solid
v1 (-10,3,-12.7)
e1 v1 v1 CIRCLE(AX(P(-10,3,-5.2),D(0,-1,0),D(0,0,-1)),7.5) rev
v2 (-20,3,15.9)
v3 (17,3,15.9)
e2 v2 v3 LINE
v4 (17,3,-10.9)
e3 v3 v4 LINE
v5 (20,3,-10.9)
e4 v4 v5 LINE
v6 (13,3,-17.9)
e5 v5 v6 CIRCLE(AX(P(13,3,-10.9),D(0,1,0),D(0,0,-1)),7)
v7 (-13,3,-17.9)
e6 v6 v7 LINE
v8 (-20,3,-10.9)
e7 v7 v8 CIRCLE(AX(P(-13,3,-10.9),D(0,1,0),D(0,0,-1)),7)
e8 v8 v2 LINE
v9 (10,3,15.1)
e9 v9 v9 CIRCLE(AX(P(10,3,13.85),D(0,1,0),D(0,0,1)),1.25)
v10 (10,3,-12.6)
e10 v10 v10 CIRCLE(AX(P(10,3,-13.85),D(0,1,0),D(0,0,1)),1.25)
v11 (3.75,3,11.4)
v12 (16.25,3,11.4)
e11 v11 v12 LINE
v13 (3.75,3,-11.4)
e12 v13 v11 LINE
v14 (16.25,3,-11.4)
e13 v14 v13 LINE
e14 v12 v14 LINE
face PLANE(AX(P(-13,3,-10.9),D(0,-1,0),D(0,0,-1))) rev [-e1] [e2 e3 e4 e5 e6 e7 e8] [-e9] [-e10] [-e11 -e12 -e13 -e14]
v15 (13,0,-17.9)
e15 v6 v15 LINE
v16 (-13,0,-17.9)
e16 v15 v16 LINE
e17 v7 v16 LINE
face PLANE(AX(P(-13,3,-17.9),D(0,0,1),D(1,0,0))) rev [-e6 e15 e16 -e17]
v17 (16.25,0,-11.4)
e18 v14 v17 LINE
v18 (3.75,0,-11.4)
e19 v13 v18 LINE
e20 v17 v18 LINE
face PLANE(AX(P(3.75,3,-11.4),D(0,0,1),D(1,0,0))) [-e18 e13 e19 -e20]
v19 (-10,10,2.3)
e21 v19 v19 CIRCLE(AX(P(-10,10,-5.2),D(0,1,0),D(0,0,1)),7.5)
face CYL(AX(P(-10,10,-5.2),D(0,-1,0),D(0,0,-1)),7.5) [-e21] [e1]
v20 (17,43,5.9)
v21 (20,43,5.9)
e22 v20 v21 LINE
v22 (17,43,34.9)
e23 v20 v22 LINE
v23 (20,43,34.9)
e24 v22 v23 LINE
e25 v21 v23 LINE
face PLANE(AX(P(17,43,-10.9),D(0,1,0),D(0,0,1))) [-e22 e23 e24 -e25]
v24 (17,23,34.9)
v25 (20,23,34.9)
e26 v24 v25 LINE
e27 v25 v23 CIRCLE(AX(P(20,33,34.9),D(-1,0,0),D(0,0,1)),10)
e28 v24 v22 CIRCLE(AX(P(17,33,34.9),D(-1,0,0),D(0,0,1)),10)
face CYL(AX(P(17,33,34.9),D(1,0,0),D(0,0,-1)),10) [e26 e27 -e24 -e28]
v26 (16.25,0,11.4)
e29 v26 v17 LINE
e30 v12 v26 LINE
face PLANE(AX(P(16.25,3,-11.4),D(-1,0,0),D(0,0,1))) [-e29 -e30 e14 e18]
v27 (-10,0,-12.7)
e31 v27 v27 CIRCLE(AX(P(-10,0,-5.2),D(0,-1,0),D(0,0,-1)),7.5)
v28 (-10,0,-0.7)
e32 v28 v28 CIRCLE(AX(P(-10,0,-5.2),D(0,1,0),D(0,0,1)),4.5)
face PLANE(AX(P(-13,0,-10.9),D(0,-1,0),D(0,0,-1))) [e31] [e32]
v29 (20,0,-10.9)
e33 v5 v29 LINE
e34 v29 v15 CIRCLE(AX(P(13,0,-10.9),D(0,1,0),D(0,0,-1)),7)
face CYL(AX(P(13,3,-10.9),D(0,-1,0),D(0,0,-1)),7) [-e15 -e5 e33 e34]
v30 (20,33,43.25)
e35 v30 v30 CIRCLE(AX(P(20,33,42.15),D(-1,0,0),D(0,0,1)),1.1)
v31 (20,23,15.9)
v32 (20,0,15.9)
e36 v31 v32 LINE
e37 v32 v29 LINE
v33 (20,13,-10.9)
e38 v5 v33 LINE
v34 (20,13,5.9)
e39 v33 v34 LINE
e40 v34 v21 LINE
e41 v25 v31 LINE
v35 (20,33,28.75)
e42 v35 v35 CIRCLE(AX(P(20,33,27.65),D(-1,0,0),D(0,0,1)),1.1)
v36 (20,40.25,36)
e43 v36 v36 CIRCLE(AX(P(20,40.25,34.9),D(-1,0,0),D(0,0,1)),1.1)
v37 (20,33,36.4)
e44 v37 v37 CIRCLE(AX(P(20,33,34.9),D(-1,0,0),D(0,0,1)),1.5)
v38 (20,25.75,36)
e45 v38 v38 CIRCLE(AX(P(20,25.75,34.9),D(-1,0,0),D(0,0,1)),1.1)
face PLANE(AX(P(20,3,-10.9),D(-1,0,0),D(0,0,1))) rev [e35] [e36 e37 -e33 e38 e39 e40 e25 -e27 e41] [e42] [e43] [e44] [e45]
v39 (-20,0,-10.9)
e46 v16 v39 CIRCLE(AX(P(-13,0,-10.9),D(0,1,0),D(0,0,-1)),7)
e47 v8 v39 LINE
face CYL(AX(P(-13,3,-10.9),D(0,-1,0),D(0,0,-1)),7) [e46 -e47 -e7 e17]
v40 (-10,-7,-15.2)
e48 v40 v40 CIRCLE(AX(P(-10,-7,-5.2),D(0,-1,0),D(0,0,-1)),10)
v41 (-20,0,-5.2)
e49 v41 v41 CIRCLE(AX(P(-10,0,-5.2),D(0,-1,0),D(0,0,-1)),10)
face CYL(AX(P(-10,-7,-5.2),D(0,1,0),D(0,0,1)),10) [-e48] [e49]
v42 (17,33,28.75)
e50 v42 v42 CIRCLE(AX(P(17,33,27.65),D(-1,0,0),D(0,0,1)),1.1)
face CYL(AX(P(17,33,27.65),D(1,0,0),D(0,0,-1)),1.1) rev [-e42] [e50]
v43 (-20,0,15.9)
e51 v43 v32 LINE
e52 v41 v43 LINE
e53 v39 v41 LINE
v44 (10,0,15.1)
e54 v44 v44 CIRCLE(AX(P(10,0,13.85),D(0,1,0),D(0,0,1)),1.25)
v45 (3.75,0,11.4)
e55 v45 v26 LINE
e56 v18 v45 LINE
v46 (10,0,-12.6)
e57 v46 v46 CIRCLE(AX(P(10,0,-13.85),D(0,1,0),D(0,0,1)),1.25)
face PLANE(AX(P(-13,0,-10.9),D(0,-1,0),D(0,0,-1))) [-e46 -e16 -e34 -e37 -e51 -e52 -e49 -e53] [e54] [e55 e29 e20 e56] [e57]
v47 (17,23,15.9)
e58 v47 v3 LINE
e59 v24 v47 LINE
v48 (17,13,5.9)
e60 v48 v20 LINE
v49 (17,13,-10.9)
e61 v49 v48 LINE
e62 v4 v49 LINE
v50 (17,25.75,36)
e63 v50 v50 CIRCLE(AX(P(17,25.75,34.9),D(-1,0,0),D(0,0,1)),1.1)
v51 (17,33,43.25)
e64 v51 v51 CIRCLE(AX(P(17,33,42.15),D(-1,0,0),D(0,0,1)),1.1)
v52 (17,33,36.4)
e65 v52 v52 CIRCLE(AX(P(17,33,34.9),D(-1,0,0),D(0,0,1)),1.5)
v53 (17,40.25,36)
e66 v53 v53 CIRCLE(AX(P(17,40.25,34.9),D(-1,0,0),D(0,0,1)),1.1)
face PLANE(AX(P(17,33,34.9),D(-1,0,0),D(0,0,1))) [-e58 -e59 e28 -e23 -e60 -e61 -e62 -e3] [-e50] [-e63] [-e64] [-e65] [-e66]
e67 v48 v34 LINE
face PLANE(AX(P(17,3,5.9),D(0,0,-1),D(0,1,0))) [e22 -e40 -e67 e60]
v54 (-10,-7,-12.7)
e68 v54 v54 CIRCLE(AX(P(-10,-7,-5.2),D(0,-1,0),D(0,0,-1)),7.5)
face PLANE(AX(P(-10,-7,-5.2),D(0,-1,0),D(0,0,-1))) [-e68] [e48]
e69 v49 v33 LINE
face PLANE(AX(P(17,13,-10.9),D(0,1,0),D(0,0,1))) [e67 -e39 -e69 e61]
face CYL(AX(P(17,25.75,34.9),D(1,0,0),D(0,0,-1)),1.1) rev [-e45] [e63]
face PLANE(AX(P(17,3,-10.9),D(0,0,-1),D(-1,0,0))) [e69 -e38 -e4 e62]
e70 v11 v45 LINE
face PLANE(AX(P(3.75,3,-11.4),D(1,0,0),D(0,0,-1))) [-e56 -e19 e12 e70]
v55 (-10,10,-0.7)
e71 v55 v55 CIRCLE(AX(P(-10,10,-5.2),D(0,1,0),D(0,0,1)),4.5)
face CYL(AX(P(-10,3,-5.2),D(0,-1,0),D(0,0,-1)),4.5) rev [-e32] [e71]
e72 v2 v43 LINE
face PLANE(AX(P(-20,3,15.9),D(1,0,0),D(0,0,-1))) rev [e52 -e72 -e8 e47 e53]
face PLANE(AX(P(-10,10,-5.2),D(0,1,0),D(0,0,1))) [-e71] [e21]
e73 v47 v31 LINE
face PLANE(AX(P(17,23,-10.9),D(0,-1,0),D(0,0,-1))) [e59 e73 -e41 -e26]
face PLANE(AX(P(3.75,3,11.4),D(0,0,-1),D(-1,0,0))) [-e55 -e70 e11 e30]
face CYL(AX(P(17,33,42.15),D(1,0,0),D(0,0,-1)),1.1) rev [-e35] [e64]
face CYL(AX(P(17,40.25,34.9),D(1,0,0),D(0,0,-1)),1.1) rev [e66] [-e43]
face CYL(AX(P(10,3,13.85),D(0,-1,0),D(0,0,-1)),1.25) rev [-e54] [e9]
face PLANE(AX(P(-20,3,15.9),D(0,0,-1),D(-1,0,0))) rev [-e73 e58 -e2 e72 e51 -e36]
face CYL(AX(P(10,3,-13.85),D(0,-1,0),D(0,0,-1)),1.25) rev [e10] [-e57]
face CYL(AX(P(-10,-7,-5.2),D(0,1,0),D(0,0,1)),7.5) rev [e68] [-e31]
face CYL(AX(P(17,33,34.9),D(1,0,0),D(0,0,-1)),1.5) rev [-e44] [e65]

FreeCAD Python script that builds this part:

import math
import FreeCAD as App
import Part
import Sketcher

V = App.Vector


def add_polygon(sketch, points):
    """Adds a closed chain of lines whose ends are joined by coincident constraints."""
    first, n = sketch.GeometryCount, len(points)
    for a, b in zip(points, points[1:] + points[:1]):
        sketch.addGeometry(Part.LineSegment(App.Vector(*a, 0), App.Vector(*b, 0)), False)
    for i in range(n):
        sketch.addConstraint(Sketcher.Constraint("Coincident", first + i, 2, first + (i + 1) % n, 1))

doc = App.newDocument("Part")
params = doc.addObject("Spreadsheet::Sheet", "Params")
for row, (alias, value) in enumerate([
    ("sketch1_diameter", "9 mm"),
    ("sketch1_radius", "7 mm"),
    ("sketch1_diameter2", "2.5 mm"),
    ("sketch1_width", "40 mm"),
    ("sketch1_width2", "12.5 mm"),
    ("pad1_length", "3 mm"),
    ("sketch2_diameter", "3 mm"),
    ("sketch2_radius", "10 mm"),
    ("sketch2_diameter2", "2.2 mm"),
    ("sketch2_width", "20 mm"),
    ("sketch2_width2", "10 mm"),
    ("pad2_length", "3 mm"),
    ("sketch3_diameter", "15 mm"),
    ("sketch3_diameter2", "9 mm"),
    ("pad3_length", "7 mm"),
    ("sketch4_diameter", "20 mm"),
    ("sketch4_diameter2", "15 mm"),
    ("pad4_length", "7 mm"),
], start=1):
    params.set(f"A{row}", alias)
    params.set(f"B{row}", "=" + value)
    params.setAlias(f"B{row}", alias)

body = doc.addObject("PartDesign::Body", "Body")

# Sketch on XZ plane
sketch1 = body.newObject("Sketcher::SketchObject", "Sketch")
sketch1.AttachmentSupport = (doc.getObject("XZ_Plane"), [""])
sketch1.MapMode = "FlatFace"
sketch1.addGeometry(Part.LineSegment(V(-20, 15.9, 0), V(20, 15.9, 0)), False)  # 0
sketch1.addGeometry(Part.LineSegment(V(20, 15.9, 0), V(20, -10.9, 0)), False)  # 1
sketch1.addGeometry(Part.ArcOfCircle(Part.Circle(V(13, -10.9, 0), V(0, 0, 1), 7), math.radians(-90), math.radians(0)), False)  # 2
sketch1.addGeometry(Part.LineSegment(V(13, -17.9, 0), V(-13, -17.9, 0)), False)  # 3
sketch1.addGeometry(Part.ArcOfCircle(Part.Circle(V(-13, -10.9, 0), V(0, 0, 1), 7), math.radians(-180), math.radians(-90)), False)  # 4
sketch1.addGeometry(Part.LineSegment(V(-20, -10.9, 0), V(-20, 15.9, 0)), False)  # 5
sketch1.addGeometry(Part.Circle(V(10, 13.8, 0), V(0, 0, 1), 1.2), False)  # 6
sketch1.addGeometry(Part.Circle(V(-10, -5.2, 0), V(0, 0, 1), 4.5), False)  # 7
add_polygon(sketch1, [(16.2, 11.4), (3.8, 11.4), (3.8, -11.4), (16.2, -11.4)])  # lines 8-11
sketch1.addGeometry(Part.Circle(V(10, -13.8, 0), V(0, 0, 1), 1.2), False)  # 12
sketch1.addConstraint(Sketcher.Constraint("Coincident", 0, 2, 1, 1))
sketch1.addConstraint(Sketcher.Constraint("Tangent", 1, 2, 2, 2))
sketch1.addConstraint(Sketcher.Constraint("Tangent", 2, 1, 3, 1))
sketch1.addConstraint(Sketcher.Constraint("Tangent", 3, 2, 4, 2))
sketch1.addConstraint(Sketcher.Constraint("Tangent", 4, 1, 5, 1))
sketch1.addConstraint(Sketcher.Constraint("Coincident", 5, 2, 0, 1))
sketch1.addConstraint(Sketcher.Constraint("Horizontal", 0))
sketch1.addConstraint(Sketcher.Constraint("Vertical", 1))
sketch1.addConstraint(Sketcher.Constraint("Horizontal", 3))
sketch1.addConstraint(Sketcher.Constraint("Vertical", 5))
sketch1.addConstraint(Sketcher.Constraint("Horizontal", 8))
sketch1.addConstraint(Sketcher.Constraint("Vertical", 9))
sketch1.addConstraint(Sketcher.Constraint("Horizontal", 10))
sketch1.addConstraint(Sketcher.Constraint("Vertical", 11))
sketch1.addConstraint(Sketcher.Constraint("Equal", 2, 4))
sketch1.addConstraint(Sketcher.Constraint("Equal", 6, 12))
sketch1.addConstraint(Sketcher.Constraint("Symmetric", 6, 3, 12, 3, -1))
sketch1.addConstraint(Sketcher.Constraint("Diameter", 7, 9.0))
sketch1.addConstraint(Sketcher.Constraint("Radius", 2, 7.0))
sketch1.addConstraint(Sketcher.Constraint("Diameter", 6, 2.5))
sketch1.addConstraint(Sketcher.Constraint("DistanceX", 0, 1, 0, 2, 40.0))
sketch1.addConstraint(Sketcher.Constraint("DistanceX", 8, 2, 8, 1, 12.5))
sketch1.addConstraint(Sketcher.Constraint("DistanceY", 1, 2, 1, 1, 26.8))
sketch1.addConstraint(Sketcher.Constraint("DistanceY", 9, 2, 9, 1, 22.8))
sketch1.addConstraint(Sketcher.Constraint("DistanceX", -1, 1, 2, 3, 13.0))
sketch1.addConstraint(Sketcher.Constraint("DistanceX", -1, 1, 6, 3, 10.0))
sketch1.addConstraint(Sketcher.Constraint("DistanceX", 7, 3, -1, 1, 10.0))
sketch1.addConstraint(Sketcher.Constraint("DistanceY", 2, 3, -1, 1, 10.9))
sketch1.addConstraint(Sketcher.Constraint("DistanceY", 7, 3, -1, 1, 5.2))
sketch1.addConstraint(Sketcher.Constraint("DistanceY", -1, 1, 8, 2, 11.4))
sketch1.addConstraint(Sketcher.Constraint("DistanceY", 12, 3, 6, 3, 27.7))
sketch1.addConstraint(Sketcher.Constraint("DistanceX", -1, 1, 8, 2, 3.75))
sketch1.setExpression("Constraints[21]", "Params.sketch1_diameter")
sketch1.setExpression("Constraints[22]", "Params.sketch1_radius")
sketch1.setExpression("Constraints[23]", "Params.sketch1_diameter2")
sketch1.setExpression("Constraints[24]", "Params.sketch1_width")
sketch1.setExpression("Constraints[25]", "Params.sketch1_width2")
pad1 = body.newObject("PartDesign::Pad", "Pad")
pad1.Profile = sketch1
pad1.setExpression("Length", "Params.pad1_length")
pad1.Reversed = True

# Sketch on YZ plane
sketch2 = body.newObject("Sketcher::SketchObject", "Sketch001")
sketch2.AttachmentSupport = (doc.getObject("YZ_Plane"), [""])
sketch2.MapMode = "FlatFace"
sketch2.AttachmentOffset = App.Placement(V(0, 0, 20), App.Rotation())
sketch2.addGeometry(Part.LineSegment(V(23, 15.9, 0), V(3, 15.9, 0)), False)
sketch2.addGeometry(Part.LineSegment(V(3, 15.9, 0), V(3, -10.9, 0)), False)
sketch2.addGeometry(Part.LineSegment(V(3, -10.9, 0), V(13, -10.9, 0)), False)
sketch2.addGeometry(Part.LineSegment(V(13, -10.9, 0), V(13, 5.9, 0)), False)
sketch2.addGeometry(Part.LineSegment(V(13, 5.9, 0), V(43, 5.9, 0)), False)
sketch2.addGeometry(Part.LineSegment(V(43, 5.9, 0), V(43, 34.9, 0)), False)
sketch2.addGeometry(Part.ArcOfCircle(Part.Circle(V(33, 34.9, 0), V(0, 0, 1), 10), math.radians(0), math.radians(180)), False)
sketch2.addGeometry(Part.LineSegment(V(23, 34.9, 0), V(23, 15.9, 0)), False)
sketch2.addGeometry(Part.Circle(V(25.8, 34.9, 0), V(0, 0, 1), 1.1), False)
sketch2.addGeometry(Part.Circle(V(33, 27.6, 0), V(0, 0, 1), 1.1), False)
sketch2.addGeometry(Part.Circle(V(33, 34.9, 0), V(0, 0, 1), 1.5), False)
sketch2.addGeometry(Part.Circle(V(33, 42.1, 0), V(0, 0, 1), 1.1), False)
sketch2.addGeometry(Part.Circle(V(40.2, 34.9, 0), V(0, 0, 1), 1.1), False)
sketch2.addConstraint(Sketcher.Constraint("Coincident", 0, 2, 1, 1))
sketch2.addConstraint(Sketcher.Constraint("Coincident", 1, 2, 2, 1))
sketch2.addConstraint(Sketcher.Constraint("Coincident", 2, 2, 3, 1))
sketch2.addConstraint(Sketcher.Constraint("Coincident", 3, 2, 4, 1))
sketch2.addConstraint(Sketcher.Constraint("Coincident", 4, 2, 5, 1))
sketch2.addConstraint(Sketcher.Constraint("Tangent", 5, 2, 6, 1))
sketch2.addConstraint(Sketcher.Constraint("Tangent", 6, 2, 7, 1))
sketch2.addConstraint(Sketcher.Constraint("Coincident", 7, 2, 0, 1))
sketch2.addConstraint(Sketcher.Constraint("Horizontal", 0))
sketch2.addConstraint(Sketcher.Constraint("Vertical", 1))
sketch2.addConstraint(Sketcher.Constraint("Horizontal", 2))
sketch2.addConstraint(Sketcher.Constraint("Vertical", 3))
sketch2.addConstraint(Sketcher.Constraint("Horizontal", 4))
sketch2.addConstraint(Sketcher.Constraint("Vertical", 5))
sketch2.addConstraint(Sketcher.Constraint("Vertical", 7))
sketch2.addConstraint(Sketcher.Constraint("Coincident", 10, 3, 6, 3))
sketch2.addConstraint(Sketcher.Constraint("Equal", 8, 9))
sketch2.addConstraint(Sketcher.Constraint("Equal", 9, 11))
sketch2.addConstraint(Sketcher.Constraint("Equal", 11, 12))
sketch2.addConstraint(Sketcher.Constraint("Horizontal", 6, 3, 8, 3))
sketch2.addConstraint(Sketcher.Constraint("Horizontal", 10, 3, 12, 3))
sketch2.addConstraint(Sketcher.Constraint("Vertical", 6, 3, 9, 3))
sketch2.addConstraint(Sketcher.Constraint("Vertical", 10, 3, 11, 3))
sketch2.addConstraint(Sketcher.Constraint("Diameter", 10, 3.0))
sketch2.addConstraint(Sketcher.Constraint("Radius", 6, 10.0))
sketch2.addConstraint(Sketcher.Constraint("Diameter", 8, 2.2))
sketch2.addConstraint(Sketcher.Constraint("DistanceX", 0, 2, 0, 1, 20.0))
sketch2.addConstraint(Sketcher.Constraint("DistanceX", 2, 1, 2, 2, 10.0))
sketch2.addConstraint(Sketcher.Constraint("DistanceY", 5, 1, 5, 2, 29.0))
sketch2.addConstraint(Sketcher.Constraint("DistanceY", 7, 2, 7, 1, 19.0))
sketch2.addConstraint(Sketcher.Constraint("DistanceY", 1, 2, 1, 1, 26.8))
sketch2.addConstraint(Sketcher.Constraint("DistanceX", -1, 1, 6, 3, 33.0))
sketch2.addConstraint(Sketcher.Constraint("DistanceY", -1, 1, 6, 3, 34.9))
sketch2.addConstraint(Sketcher.Constraint("DistanceY", 9, 3, 11, 3, 14.5))
sketch2.addConstraint(Sketcher.Constraint("DistanceX", 8, 3, 12, 3, 14.5))
sketch2.addConstraint(Sketcher.Constraint("DistanceX", -1, 1, 8, 3, 25.75))
sketch2.addConstraint(Sketcher.Constraint("DistanceY", -1, 1, 9, 3, 27.65))
sketch2.setExpression("Constraints[23]", "Params.sketch2_diameter")
sketch2.setExpression("Constraints[24]", "Params.sketch2_radius")
sketch2.setExpression("Constraints[25]", "Params.sketch2_diameter2")
sketch2.setExpression("Constraints[26]", "Params.sketch2_width")
sketch2.setExpression("Constraints[27]", "Params.sketch2_width2")
pad2 = body.newObject("PartDesign::Pad", "Pad001")
pad2.Profile = sketch2
pad2.setExpression("Length", "Params.pad2_length")
pad2.Reversed = True

# Sketch on XZ plane
sketch3 = body.newObject("Sketcher::SketchObject", "Sketch002")
sketch3.AttachmentSupport = (doc.getObject("XZ_Plane"), [""])
sketch3.MapMode = "FlatFace"
sketch3.AttachmentOffset = App.Placement(V(0, 0, -3), App.Rotation())
sketch3.addGeometry(Part.Circle(V(-10, -5.2, 0), V(0, 0, 1), 7.5), False)
sketch3.addGeometry(Part.Circle(V(-10, -5.2, 0), V(0, 0, 1), 4.5), False)
sketch3.addConstraint(Sketcher.Constraint("Coincident", 1, 3, 0, 3))
sketch3.addConstraint(Sketcher.Constraint("Diameter", 0, 15.0))
sketch3.addConstraint(Sketcher.Constraint("Diameter", 1, 9.0))
sketch3.addConstraint(Sketcher.Constraint("DistanceX", 0, 3, -1, 1, 10.0))
sketch3.addConstraint(Sketcher.Constraint("DistanceY", 0, 3, -1, 1, 5.2))
sketch3.setExpression("Constraints[1]", "Params.sketch3_diameter")
sketch3.setExpression("Constraints[2]", "Params.sketch3_diameter2")
pad3 = body.newObject("PartDesign::Pad", "Pad002")
pad3.Profile = sketch3
pad3.setExpression("Length", "Params.pad3_length")
pad3.Reversed = True

# Sketch on XZ plane
sketch4 = body.newObject("Sketcher::SketchObject", "Sketch003")
sketch4.AttachmentSupport = (doc.getObject("XZ_Plane"), [""])
sketch4.MapMode = "FlatFace"
sketch4.AttachmentOffset = App.Placement(V(0, 0, 7), App.Rotation())
sketch4.addGeometry(Part.Circle(V(-10, -5, 0), V(0, 0, 1), 10), False)
sketch4.addGeometry(Part.Circle(V(-10, -5, 0), V(0, 0, 1), 8), False)
sketch4.addConstraint(Sketcher.Constraint("Coincident", 1, 3, 0, 3))
sketch4.addConstraint(Sketcher.Constraint("Diameter", 0, 20.0))
sketch4.addConstraint(Sketcher.Constraint("Diameter", 1, 15.0))
sketch4.addConstraint(Sketcher.Constraint("DistanceX", 0, 3, -1, 1, 10.0))
sketch4.addConstraint(Sketcher.Constraint("DistanceY", 0, 3, -1, 1, 5.2))
sketch4.setExpression("Constraints[1]", "Params.sketch4_diameter")
sketch4.setExpression("Constraints[2]", "Params.sketch4_diameter2")
pad4 = body.newObject("PartDesign::Pad", "Pad003")
pad4.Profile = sketch4
pad4.setExpression("Length", "Params.pad4_length")
pad4.Reversed = True

doc.recompute()
